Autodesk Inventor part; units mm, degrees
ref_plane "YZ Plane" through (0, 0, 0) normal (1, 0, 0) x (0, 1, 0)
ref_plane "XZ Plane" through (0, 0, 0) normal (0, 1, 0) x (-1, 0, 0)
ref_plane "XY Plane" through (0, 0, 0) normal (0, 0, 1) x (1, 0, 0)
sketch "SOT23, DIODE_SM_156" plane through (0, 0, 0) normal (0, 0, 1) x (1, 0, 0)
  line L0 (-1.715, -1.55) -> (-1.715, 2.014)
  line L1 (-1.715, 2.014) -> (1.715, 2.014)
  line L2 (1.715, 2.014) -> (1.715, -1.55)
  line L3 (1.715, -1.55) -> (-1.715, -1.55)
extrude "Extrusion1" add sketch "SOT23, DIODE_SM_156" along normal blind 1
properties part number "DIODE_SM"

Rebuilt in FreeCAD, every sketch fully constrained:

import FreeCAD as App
import Part
import Sketcher

V = App.Vector
Q = App.Units.Quantity

doc = App.newDocument("Part")
body = doc.addObject("PartDesign::Body", "Body")

# Sketch on XY plane
sketch1 = body.newObject("Sketcher::SketchObject", "Sketch")
sketch1.AttachmentSupport = (doc.getObject("XY_Plane"), [""])
sketch1.MapMode = "FlatFace"
sketch1.addGeometry([
    Part.LineSegment(V(-1.715, 2.014, 0), V(-1.715, -1.55, 0)),
    Part.LineSegment(V(-1.715, -1.55, 0), V(1.715, -1.55, 0)),
    Part.LineSegment(V(1.715, -1.55, 0), V(1.715, 2.014, 0)),
    Part.LineSegment(V(1.715, 2.014, 0), V(-1.715, 2.014, 0)),
], False)
sketch1.addConstraint([
    Sketcher.Constraint("Coincident", 0, 2, 1, 1),
    Sketcher.Constraint("Coincident", 1, 2, 2, 1),
    Sketcher.Constraint("Coincident", 2, 2, 3, 1),
    Sketcher.Constraint("Coincident", 3, 2, 0, 1),
    Sketcher.Constraint("Vertical", 0),
    Sketcher.Constraint("Horizontal", 1),
    Sketcher.Constraint("Vertical", 2),
    Sketcher.Constraint("Horizontal", 3),
    Sketcher.Constraint("DistanceX", 1, 1, 1, 2, Q("3.43 mm")),
    Sketcher.Constraint("DistanceY", 0, 2, 0, 1, Q("3.564 mm")),
    Sketcher.Constraint("DistanceY", 0, 2, -1, 1, Q("1.55 mm")),
    Sketcher.Constraint("DistanceX", 0, 2, -1, 1, Q("1.715 mm")),
])
pad1 = body.newObject("PartDesign::Pad", "Pad")
pad1.Profile = sketch1
pad1.Length = 1

doc.recompute()
